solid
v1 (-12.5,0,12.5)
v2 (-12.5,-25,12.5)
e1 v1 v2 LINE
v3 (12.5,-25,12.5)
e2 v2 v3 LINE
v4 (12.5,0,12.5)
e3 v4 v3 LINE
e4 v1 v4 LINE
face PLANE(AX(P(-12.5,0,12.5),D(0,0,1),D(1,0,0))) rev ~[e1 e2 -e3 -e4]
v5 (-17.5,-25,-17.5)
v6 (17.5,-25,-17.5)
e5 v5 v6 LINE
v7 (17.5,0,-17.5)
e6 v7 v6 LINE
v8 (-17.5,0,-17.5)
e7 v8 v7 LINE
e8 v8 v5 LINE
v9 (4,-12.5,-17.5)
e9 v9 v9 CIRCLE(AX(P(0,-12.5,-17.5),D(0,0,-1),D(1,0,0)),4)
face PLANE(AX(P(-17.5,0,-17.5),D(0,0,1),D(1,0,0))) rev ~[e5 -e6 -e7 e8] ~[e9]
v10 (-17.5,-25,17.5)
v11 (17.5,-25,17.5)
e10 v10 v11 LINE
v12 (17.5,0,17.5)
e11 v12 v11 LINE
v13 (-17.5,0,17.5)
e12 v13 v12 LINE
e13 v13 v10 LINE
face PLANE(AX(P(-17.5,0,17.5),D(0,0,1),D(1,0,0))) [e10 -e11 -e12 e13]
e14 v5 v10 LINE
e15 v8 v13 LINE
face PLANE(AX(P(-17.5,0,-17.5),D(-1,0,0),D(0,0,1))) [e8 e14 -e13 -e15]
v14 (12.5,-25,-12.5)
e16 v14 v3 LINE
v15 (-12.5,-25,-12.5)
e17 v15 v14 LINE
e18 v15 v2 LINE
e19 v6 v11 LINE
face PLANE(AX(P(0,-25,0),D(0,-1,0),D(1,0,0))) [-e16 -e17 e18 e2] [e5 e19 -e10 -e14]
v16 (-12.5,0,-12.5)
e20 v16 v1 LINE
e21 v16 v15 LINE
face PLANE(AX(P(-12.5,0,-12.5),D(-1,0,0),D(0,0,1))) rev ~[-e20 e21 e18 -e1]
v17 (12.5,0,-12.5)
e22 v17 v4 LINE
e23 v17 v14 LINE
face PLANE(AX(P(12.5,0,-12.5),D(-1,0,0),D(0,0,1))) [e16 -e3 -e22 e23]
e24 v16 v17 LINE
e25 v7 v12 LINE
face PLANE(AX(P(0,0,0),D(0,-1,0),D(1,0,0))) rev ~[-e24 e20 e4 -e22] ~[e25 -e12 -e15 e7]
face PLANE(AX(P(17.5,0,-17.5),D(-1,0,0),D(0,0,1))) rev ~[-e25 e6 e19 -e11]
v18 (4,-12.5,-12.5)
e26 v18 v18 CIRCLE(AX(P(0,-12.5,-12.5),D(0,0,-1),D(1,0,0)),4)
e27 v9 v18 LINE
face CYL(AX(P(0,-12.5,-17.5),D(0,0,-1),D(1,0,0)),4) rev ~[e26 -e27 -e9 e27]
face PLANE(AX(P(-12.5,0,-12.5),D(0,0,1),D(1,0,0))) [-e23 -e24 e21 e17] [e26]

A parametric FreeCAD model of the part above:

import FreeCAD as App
import Part
import Sketcher
from FreeCAD import Vector
Q = App.Units.Quantity

doc = App.newDocument("Part")
body = doc.addObject("PartDesign::Body", "Body")

# Sketch on XZ plane
sketch1 = body.newObject("Sketcher::SketchObject", "Sketch")
sketch1.AttachmentSupport = (doc.getObject("XZ_Plane"), [""])
sketch1.MapMode = "FlatFace"
sketch1.addGeometry([
    Part.LineSegment(Vector(-18, 18, 0), Vector(-18, -18, 0)),  # 0
    Part.LineSegment(Vector(-18, -18, 0), Vector(18, -18, 0)),  # 1
    Part.LineSegment(Vector(18, -18, 0), Vector(18, 18, 0)),  # 2
    Part.LineSegment(Vector(18, 18, 0), Vector(-18, 18, 0)),  # 3
    Part.LineSegment(Vector(12, -12, 0), Vector(-12, -12, 0)),  # 4
    Part.LineSegment(Vector(-12, -12, 0), Vector(-12, 12, 0)),  # 5
    Part.LineSegment(Vector(-12, 12, 0), Vector(12, 12, 0)),  # 6
    Part.LineSegment(Vector(12, 12, 0), Vector(12, -12, 0)),  # 7
], False)
sketch1.addConstraint([
    Sketcher.Constraint("Coincident", 0, 2, 1, 1),
    Sketcher.Constraint("Coincident", 1, 2, 2, 1),
    Sketcher.Constraint("Coincident", 2, 2, 3, 1),
    Sketcher.Constraint("Coincident", 3, 2, 0, 1),
    Sketcher.Constraint("Coincident", 4, 2, 5, 1),
    Sketcher.Constraint("Coincident", 5, 2, 6, 1),
    Sketcher.Constraint("Coincident", 6, 2, 7, 1),
    Sketcher.Constraint("Coincident", 7, 2, 4, 1),
    Sketcher.Constraint("Vertical", 0),
    Sketcher.Constraint("Horizontal", 1),
    Sketcher.Constraint("Vertical", 2),
    Sketcher.Constraint("Horizontal", 3),
    Sketcher.Constraint("Horizontal", 4),
    Sketcher.Constraint("Vertical", 5),
    Sketcher.Constraint("Horizontal", 6),
    Sketcher.Constraint("Vertical", 7),
    Sketcher.Constraint("Symmetric", 0, 2, 2, 2, -1, 1),
    Sketcher.Constraint("Symmetric", 4, 2, 6, 2, -1, 1),
    Sketcher.Constraint("Equal", 3, 0),
    Sketcher.Constraint("Equal", 6, 5),
    Sketcher.Constraint("DistanceX", 1, 1, 1, 2, Q("35 mm")),
    Sketcher.Constraint("DistanceX", 4, 2, 4, 1, Q("25 mm")),
])
pad1 = body.newObject("PartDesign::Pad", "Pad")
pad1.Profile = sketch1
pad1.Length = 25

# Sketch on XY plane
sketch2 = body.newObject("Sketcher::SketchObject", "Sketch001")
sketch2.AttachmentSupport = (doc.getObject("XY_Plane"), [""])
sketch2.MapMode = "FlatFace"
sketch2.AttachmentOffset = App.Placement(Vector(0, 0, -17.5), App.Rotation())
sketch2.addGeometry(Part.Circle(Vector(0, -12.5, 0), Vector(0, 0, 1), 4), False)
sketch2.addConstraint([
    Sketcher.Constraint("PointOnObject", 0, 3, -2),
    Sketcher.Constraint("Diameter", 0, Q("8 mm")),
    Sketcher.Constraint("DistanceY", 0, 3, -1, 1, Q("12.5 mm")),
])
pocket1 = body.newObject("PartDesign::Pocket", "Pocket")
pocket1.Profile = sketch2
pocket1.Length = 25
pocket1.Reversed = True

doc.recompute()
